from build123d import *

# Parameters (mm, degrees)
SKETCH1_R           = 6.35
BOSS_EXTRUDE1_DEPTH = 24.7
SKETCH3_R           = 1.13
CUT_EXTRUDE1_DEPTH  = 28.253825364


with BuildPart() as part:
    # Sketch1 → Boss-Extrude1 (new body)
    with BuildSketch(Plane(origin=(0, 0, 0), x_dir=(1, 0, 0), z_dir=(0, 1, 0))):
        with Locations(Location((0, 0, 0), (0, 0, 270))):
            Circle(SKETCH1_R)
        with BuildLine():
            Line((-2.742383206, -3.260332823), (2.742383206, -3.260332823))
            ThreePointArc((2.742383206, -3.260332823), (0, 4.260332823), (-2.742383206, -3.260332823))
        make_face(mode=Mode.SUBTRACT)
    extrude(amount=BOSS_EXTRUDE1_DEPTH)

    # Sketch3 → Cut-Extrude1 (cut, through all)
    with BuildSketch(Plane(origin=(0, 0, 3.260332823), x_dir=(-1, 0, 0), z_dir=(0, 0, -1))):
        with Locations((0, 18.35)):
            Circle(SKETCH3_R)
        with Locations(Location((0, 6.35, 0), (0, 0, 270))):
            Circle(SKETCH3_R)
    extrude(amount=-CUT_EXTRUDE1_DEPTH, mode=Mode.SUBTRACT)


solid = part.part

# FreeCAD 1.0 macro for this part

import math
import FreeCAD as App
import Part
import Sketcher
Q = App.Units.Quantity

doc = App.newDocument("Part")
params = doc.addObject("Spreadsheet::Sheet", "Params")
for row, (alias, value) in enumerate([
    ("sketch1_diameter", "12.7 mm"),
    ("pad1_length", "24.7 mm"),
    ("sketch2_diameter", "2.26 mm"),
], start=1):
    params.set(f"A{row}", alias)
    params.set(f"B{row}", "=" + value)
    params.setAlias(f"B{row}", alias)

body = doc.addObject("PartDesign::Body", "Body")

# Sketch on XZ plane
sketch1 = doc.addObject("Sketcher::SketchObject", "Sketch")
body.addObject(sketch1)
sketch1.AttachmentSupport = (doc.XZ_Plane, [""])
sketch1.MapMode = "FlatFace"
sketch1.addGeometry([
    Part.Circle(App.Vector(0, 0, 0), App.Vector(0, 0, 1), 6.3),
    Part.LineSegment(App.Vector(2.7, 3.3, 0), App.Vector(-2.7, 3.3, 0)),
    Part.ArcOfCircle(Part.Circle(App.Vector(0, 0, 0), App.Vector(0, 0, 1), 4.3), math.radians(130), math.radians(410)),
], False)
sketch1.addConstraint([
    Sketcher.Constraint("Coincident", 1, 1, 2, 2),
    Sketcher.Constraint("Coincident", 2, 1, 1, 2),
    Sketcher.Constraint("Horizontal", 1),
    Sketcher.Constraint("Coincident", 0, 3, -1, 1),
    Sketcher.Constraint("Coincident", 2, 3, -1, 1),
    Sketcher.Constraint("Diameter", 0, Q("12.7 mm")),
    Sketcher.Constraint("Radius", 2, Q("4.260333 mm")),
    Sketcher.Constraint("DistanceX", 1, 2, 1, 1, Q("5.484766 mm")),
])
sketch1.setExpression("Constraints[5]", "Params.sketch1_diameter")
pad1 = doc.addObject("PartDesign::Pad", "Pad")
body.addObject(pad1)
pad1.Profile = sketch1
pad1.setExpression("Length", "Params.pad1_length")
pad1.Reversed = True

# Sketch on XY plane
sketch2 = doc.addObject("Sketcher::SketchObject", "Sketch001")
body.addObject(sketch2)
sketch2.AttachmentSupport = (doc.XY_Plane, [""])
sketch2.MapMode = "FlatFace"
sketch2.AttachmentOffset = App.Placement(App.Vector(0, 0, 3.260333), App.Rotation())
sketch2.addGeometry([
    Part.Circle(App.Vector(0, 18.4, 0), App.Vector(0, 0, 1), 1.1),
    Part.Circle(App.Vector(0, 6.3, 0), App.Vector(0, 0, 1), 1.1),
], False)
sketch2.addConstraint([
    Sketcher.Constraint("Equal", 0, 1),
    Sketcher.Constraint("PointOnObject", 0, 3, -2),
    Sketcher.Constraint("PointOnObject", 1, 3, -2),
    Sketcher.Constraint("Diameter", 0, Q("2.26 mm")),
    Sketcher.Constraint("DistanceY", 1, 3, 0, 3, Q("12 mm")),
    Sketcher.Constraint("DistanceY", -1, 1, 0, 3, Q("18.35 mm")),
])
sketch2.setExpression("Constraints[3]", "Params.sketch2_diameter")
pocket1 = doc.addObject("PartDesign::Pocket", "Pocket")
body.addObject(pocket1)
pocket1.Profile = sketch2
pocket1.Type = "ThroughAll"
pocket1.Reversed = True

doc.recompute()
